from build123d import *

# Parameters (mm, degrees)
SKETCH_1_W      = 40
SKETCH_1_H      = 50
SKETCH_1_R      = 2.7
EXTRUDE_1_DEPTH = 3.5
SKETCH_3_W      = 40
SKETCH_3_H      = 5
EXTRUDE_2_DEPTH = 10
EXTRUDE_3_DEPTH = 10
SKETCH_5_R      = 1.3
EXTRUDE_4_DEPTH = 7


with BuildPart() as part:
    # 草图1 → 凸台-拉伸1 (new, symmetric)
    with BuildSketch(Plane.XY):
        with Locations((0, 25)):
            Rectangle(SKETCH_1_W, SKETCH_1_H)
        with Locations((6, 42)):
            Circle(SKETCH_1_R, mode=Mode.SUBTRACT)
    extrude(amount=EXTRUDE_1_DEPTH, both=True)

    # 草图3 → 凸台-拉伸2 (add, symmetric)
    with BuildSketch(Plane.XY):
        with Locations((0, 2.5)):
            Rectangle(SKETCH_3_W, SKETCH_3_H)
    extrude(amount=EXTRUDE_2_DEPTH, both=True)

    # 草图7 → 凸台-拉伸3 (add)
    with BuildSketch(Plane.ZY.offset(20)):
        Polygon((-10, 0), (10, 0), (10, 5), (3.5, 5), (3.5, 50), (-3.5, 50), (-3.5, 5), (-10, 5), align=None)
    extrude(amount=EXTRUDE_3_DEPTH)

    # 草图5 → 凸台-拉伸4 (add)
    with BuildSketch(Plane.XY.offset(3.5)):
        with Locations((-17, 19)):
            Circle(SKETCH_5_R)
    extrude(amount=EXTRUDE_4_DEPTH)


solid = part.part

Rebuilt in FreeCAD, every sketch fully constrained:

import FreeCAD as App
import Part
import Sketcher
from FreeCAD import Vector


def add_polygon(sketch, points):
    """Adds a closed chain of lines whose ends are joined by coincident constraints."""
    first, n = sketch.GeometryCount, len(points)
    for a, b in zip(points, points[1:] + points[:1]):
        sketch.addGeometry(Part.LineSegment(App.Vector(*a, 0), App.Vector(*b, 0)), False)
    for i in range(n):
        sketch.addConstraint(Sketcher.Constraint("Coincident", first + i, 2, first + (i + 1) % n, 1))

doc = App.newDocument("Part")
body = doc.addObject("PartDesign::Body", "Body")

sketch1 = body.newObject("Sketcher::SketchObject", "Sketch")
sketch1.AttachmentSupport = (doc.getObject("XY_Plane"), [""])
sketch1.MapMode = "FlatFace"
add_polygon(sketch1, [(-20, 50), (-20, 0), (20, 0), (20, 50)])
sketch1.addGeometry(Part.Circle(Vector(6, 42, 0), Vector(0, 0, 1), 2.7), False)
sketch1.addConstraint(Sketcher.Constraint("Vertical", 0))
sketch1.addConstraint(Sketcher.Constraint("Horizontal", 1))
sketch1.addConstraint(Sketcher.Constraint("Vertical", 2))
sketch1.addConstraint(Sketcher.Constraint("Horizontal", 3))
sketch1.addConstraint(Sketcher.Constraint("Symmetric", 0, 2, 1, 2, -1, 1))
sketch1.addConstraint(Sketcher.Constraint("Diameter", 4, 5.4))
sketch1.addConstraint(Sketcher.Constraint("DistanceX", 1, 1, 1, 2, 40.0))
sketch1.addConstraint(Sketcher.Constraint("DistanceY", 0, 2, 0, 1, 50.0))
sketch1.addConstraint(Sketcher.Constraint("DistanceX", -1, 1, 4, 3, 6.0))
sketch1.addConstraint(Sketcher.Constraint("DistanceY", -1, 1, 4, 3, 42.0))
pad1 = body.newObject("PartDesign::Pad", "Pad")
pad1.Profile = sketch1
pad1.Length = 7
pad1.Midplane = True

sketch2 = body.newObject("Sketcher::SketchObject", "Sketch001")
sketch2.AttachmentSupport = (doc.getObject("XY_Plane"), [""])
sketch2.MapMode = "FlatFace"
add_polygon(sketch2, [(-20, 5), (-20, 0), (20, 0), (20, 5)])
sketch2.addConstraint(Sketcher.Constraint("Vertical", 0))
sketch2.addConstraint(Sketcher.Constraint("Horizontal", 1))
sketch2.addConstraint(Sketcher.Constraint("Vertical", 2))
sketch2.addConstraint(Sketcher.Constraint("Horizontal", 3))
sketch2.addConstraint(Sketcher.Constraint("Symmetric", 0, 2, 1, 2, -1, 1))
sketch2.addConstraint(Sketcher.Constraint("DistanceX", 1, 1, 1, 2, 40.0))
sketch2.addConstraint(Sketcher.Constraint("DistanceY", 0, 2, 0, 1, 5.0))
pad2 = body.newObject("PartDesign::Pad", "Pad001")
pad2.Profile = sketch2
pad2.Length = 20
pad2.Midplane = True

sketch3 = body.newObject("Sketcher::SketchObject", "Sketch002")
sketch3.AttachmentSupport = (doc.getObject("YZ_Plane"), [""])
sketch3.MapMode = "FlatFace"
sketch3.AttachmentOffset = App.Placement(Vector(0, 0, -20), App.Rotation())
add_polygon(sketch3, [(0, -10), (0, 10), (5, 10), (5, 4), (50, 4), (50, -4), (5, -4), (5, -10)])
sketch3.addConstraint(Sketcher.Constraint("Vertical", 0))
sketch3.addConstraint(Sketcher.Constraint("Horizontal", 1))
sketch3.addConstraint(Sketcher.Constraint("Vertical", 2))
sketch3.addConstraint(Sketcher.Constraint("Horizontal", 3))
sketch3.addConstraint(Sketcher.Constraint("Vertical", 4))
sketch3.addConstraint(Sketcher.Constraint("Horizontal", 5))
sketch3.addConstraint(Sketcher.Constraint("Vertical", 6))
sketch3.addConstraint(Sketcher.Constraint("Horizontal", 7))
sketch3.addConstraint(Sketcher.Constraint("Symmetric", 0, 2, 7, 2, -1, 1))
sketch3.addConstraint(Sketcher.Constraint("Symmetric", 2, 2, 5, 2, -1))
sketch3.addConstraint(Sketcher.Constraint("DistanceX", 1, 1, 1, 2, 5.0))
sketch3.addConstraint(Sketcher.Constraint("DistanceX", 3, 1, 3, 2, 45.0))
sketch3.addConstraint(Sketcher.Constraint("DistanceY", 0, 1, 0, 2, 20.0))
sketch3.addConstraint(Sketcher.Constraint("DistanceY", 4, 2, 4, 1, 7.0))
pad3 = body.newObject("PartDesign::Pad", "Pad002")
pad3.Profile = sketch3
pad3.Length = 10
pad3.Reversed = True

sketch4 = body.newObject("Sketcher::SketchObject", "Sketch003")
sketch4.AttachmentSupport = (doc.getObject("XY_Plane"), [""])
sketch4.MapMode = "FlatFace"
sketch4.AttachmentOffset = App.Placement(Vector(0, 0, 3.5), App.Rotation())
sketch4.addGeometry(Part.Circle(Vector(-17, 19, 0), Vector(0, 0, 1), 1.3), False)
sketch4.addConstraint(Sketcher.Constraint("Diameter", 0, 2.6))
sketch4.addConstraint(Sketcher.Constraint("DistanceX", 0, 3, -1, 1, 17.0))
sketch4.addConstraint(Sketcher.Constraint("DistanceY", -1, 1, 0, 3, 19.0))
pad4 = body.newObject("PartDesign::Pad", "Pad003")
pad4.Profile = sketch4
pad4.Length = 7

doc.recompute()
